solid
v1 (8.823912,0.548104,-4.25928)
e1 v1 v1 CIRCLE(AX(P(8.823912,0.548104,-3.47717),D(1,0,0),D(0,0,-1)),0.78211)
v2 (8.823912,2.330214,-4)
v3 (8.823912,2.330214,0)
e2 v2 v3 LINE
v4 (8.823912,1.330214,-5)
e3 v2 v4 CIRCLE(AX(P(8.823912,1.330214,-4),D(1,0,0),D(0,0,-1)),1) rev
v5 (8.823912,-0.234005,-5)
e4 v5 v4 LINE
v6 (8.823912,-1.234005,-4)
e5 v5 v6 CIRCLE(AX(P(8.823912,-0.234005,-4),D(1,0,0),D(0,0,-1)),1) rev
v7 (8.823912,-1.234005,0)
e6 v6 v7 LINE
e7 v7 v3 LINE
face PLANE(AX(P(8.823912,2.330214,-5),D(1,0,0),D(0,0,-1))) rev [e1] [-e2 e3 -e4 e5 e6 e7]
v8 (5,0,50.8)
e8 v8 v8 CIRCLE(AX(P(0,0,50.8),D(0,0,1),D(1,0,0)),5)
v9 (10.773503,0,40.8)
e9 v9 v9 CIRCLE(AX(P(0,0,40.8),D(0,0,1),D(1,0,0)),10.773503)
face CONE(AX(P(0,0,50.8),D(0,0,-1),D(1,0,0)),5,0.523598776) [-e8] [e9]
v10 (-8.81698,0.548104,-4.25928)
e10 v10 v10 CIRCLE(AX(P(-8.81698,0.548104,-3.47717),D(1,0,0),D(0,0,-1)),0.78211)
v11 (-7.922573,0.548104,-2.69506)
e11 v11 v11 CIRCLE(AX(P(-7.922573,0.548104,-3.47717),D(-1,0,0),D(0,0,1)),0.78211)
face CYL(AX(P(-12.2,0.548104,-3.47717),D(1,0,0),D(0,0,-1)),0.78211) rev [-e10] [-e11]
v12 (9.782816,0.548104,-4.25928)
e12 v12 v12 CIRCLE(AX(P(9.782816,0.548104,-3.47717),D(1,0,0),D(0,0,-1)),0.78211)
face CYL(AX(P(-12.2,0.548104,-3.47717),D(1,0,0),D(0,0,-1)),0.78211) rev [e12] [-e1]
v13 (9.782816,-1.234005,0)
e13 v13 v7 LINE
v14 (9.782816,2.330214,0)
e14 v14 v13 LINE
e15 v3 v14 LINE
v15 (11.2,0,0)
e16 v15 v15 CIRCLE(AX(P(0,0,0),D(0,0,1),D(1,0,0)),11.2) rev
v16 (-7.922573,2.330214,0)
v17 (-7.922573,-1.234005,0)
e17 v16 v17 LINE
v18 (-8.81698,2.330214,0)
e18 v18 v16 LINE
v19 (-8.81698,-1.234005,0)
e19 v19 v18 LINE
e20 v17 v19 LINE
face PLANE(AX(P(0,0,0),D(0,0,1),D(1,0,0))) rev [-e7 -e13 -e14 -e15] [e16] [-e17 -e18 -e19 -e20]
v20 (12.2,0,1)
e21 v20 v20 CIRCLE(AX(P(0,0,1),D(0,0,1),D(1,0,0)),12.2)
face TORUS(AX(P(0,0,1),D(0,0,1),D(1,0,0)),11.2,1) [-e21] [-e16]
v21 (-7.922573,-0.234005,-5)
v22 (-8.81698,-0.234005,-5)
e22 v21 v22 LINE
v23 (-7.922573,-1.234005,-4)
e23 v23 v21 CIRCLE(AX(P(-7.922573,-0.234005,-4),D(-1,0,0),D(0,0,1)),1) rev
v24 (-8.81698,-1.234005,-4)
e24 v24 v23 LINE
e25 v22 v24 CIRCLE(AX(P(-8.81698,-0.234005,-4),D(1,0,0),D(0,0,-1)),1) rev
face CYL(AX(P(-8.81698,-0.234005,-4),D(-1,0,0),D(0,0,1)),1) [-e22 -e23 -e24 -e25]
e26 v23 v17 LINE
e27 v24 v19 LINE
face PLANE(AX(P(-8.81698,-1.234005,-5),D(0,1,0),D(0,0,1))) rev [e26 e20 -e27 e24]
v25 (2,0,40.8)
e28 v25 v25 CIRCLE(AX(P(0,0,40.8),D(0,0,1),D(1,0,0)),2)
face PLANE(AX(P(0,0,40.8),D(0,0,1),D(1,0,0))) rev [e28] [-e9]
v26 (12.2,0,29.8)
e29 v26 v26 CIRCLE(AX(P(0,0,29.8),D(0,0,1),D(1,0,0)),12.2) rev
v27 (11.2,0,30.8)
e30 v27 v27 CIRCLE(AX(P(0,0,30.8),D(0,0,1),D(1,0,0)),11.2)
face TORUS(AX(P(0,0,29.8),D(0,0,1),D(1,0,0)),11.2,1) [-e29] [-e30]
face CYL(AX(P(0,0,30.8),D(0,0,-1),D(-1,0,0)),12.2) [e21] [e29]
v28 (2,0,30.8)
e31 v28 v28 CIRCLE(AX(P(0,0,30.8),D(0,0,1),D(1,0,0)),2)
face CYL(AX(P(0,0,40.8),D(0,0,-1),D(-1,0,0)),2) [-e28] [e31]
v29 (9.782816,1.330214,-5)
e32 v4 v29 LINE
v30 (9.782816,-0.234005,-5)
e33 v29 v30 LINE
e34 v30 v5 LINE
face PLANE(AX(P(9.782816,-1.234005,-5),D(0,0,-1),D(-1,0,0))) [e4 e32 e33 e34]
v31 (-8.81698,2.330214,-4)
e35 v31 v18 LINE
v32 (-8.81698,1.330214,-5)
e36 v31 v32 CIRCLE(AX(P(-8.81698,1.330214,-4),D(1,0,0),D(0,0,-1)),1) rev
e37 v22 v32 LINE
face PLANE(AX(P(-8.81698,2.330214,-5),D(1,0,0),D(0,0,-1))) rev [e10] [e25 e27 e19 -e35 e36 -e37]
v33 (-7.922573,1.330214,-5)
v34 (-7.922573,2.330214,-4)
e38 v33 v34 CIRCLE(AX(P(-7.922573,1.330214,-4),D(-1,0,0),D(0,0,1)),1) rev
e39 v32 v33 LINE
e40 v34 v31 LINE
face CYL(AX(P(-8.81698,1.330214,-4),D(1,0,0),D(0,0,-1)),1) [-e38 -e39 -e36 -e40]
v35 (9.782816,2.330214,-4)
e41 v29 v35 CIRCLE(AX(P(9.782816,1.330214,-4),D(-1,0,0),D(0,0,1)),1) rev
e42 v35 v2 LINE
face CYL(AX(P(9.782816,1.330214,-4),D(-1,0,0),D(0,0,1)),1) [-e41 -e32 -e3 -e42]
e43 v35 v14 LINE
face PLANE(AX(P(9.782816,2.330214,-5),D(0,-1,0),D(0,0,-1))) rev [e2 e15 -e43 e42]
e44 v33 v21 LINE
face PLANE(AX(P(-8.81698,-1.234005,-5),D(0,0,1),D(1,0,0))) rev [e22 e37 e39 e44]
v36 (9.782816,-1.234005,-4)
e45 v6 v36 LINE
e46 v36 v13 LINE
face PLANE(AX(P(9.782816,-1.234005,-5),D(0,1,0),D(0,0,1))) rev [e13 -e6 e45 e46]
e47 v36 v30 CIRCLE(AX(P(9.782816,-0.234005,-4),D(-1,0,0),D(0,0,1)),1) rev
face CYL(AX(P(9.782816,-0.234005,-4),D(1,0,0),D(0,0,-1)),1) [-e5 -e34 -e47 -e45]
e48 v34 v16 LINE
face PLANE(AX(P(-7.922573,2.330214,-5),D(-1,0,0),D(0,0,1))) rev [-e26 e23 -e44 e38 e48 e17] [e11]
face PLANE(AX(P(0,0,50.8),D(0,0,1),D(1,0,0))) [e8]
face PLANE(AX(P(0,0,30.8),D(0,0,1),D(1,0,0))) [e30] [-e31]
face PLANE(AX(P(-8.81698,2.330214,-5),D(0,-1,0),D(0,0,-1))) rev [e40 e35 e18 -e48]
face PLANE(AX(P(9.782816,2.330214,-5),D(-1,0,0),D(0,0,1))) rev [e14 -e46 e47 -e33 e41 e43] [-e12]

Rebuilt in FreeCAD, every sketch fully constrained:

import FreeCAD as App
import Part
import Sketcher

V = App.Vector


def edges_at(feature, points):
    """Names of the edges that pass closest to the given points."""
    edges = feature.Shape.Edges
    near = lambda p: min(range(len(edges)), key=lambda i: edges[i].distToShape(Part.Vertex(*p))[0])
    return sorted({f"Edge{near(p) + 1}" for p in points})


def faces_at(feature, points):
    """Names of the faces that lie closest to the given points."""
    faces = feature.Shape.Faces
    near = lambda p: min(range(len(faces)), key=lambda i: faces[i].distToShape(Part.Vertex(*p))[0])
    return sorted({f"Face{near(p) + 1}" for p in points})


def add_polygon(sketch, points):
    """Adds a closed chain of lines whose ends are joined by coincident constraints."""
    first, n = sketch.GeometryCount, len(points)
    for a, b in zip(points, points[1:] + points[:1]):
        sketch.addGeometry(Part.LineSegment(App.Vector(*a, 0), App.Vector(*b, 0)), False)
    for i in range(n):
        sketch.addConstraint(Sketcher.Constraint("Coincident", first + i, 2, first + (i + 1) % n, 1))

doc = App.newDocument("Part")
body = doc.addObject("PartDesign::Body", "Body")

sketch1 = body.newObject("Sketcher::SketchObject", "Sketch")
sketch1.AttachmentSupport = (doc.getObject("XY_Plane"), [""])
sketch1.MapMode = "FlatFace"
sketch1.addGeometry(Part.Circle(V(0, 0, 0), V(0, 0, 1), 12), False)
sketch1.addConstraint([
    Sketcher.Constraint("Coincident", 0, 3, -1, 1),
    Sketcher.Constraint("Diameter", 0, 24.4),
])
pad1 = body.newObject("PartDesign::Pad", "Pad")
pad1.Profile = sketch1
pad1.Length = 30.8
doc.recompute()

fillet = body.newObject("PartDesign::Fillet", "Fillet")
fillet.Base = (pad1, edges_at(pad1, [(-12.2, 0, 0), (-12.2, 0, 30.8)]))
fillet.Radius = 1

sketch2 = body.newObject("Sketcher::SketchObject", "Sketch001")
sketch2.AttachmentSupport = (doc.getObject("XY_Plane"), [""])
sketch2.MapMode = "FlatFace"
sketch2.AttachmentOffset = App.Placement(V(0, 0, 30.8), App.Rotation())
sketch2.addGeometry(Part.Circle(V(0, 0, 0), V(0, 0, 1), 2), False)
sketch2.addConstraint([
    Sketcher.Constraint("Coincident", 0, 3, -1, 1),
    Sketcher.Constraint("Diameter", 0, 4.0),
])
pad2 = body.newObject("PartDesign::Pad", "Pad001")
pad2.Profile = sketch2
pad2.Length = 10

sketch3 = body.newObject("Sketcher::SketchObject", "Sketch002")
sketch3.AttachmentSupport = (doc.getObject("XY_Plane"), [""])
sketch3.MapMode = "FlatFace"
add_polygon(sketch3, [(9.8, 2.3), (9.8, -1.2), (8.8, -1.2), (8.8, 2.3)])
add_polygon(sketch3, [(-7.9, 2.3), (-7.9, -1.2), (-8.8, -1.2), (-8.8, 2.3)])
sketch3.addConstraint([
    Sketcher.Constraint("Vertical", 0),
    Sketcher.Constraint("Horizontal", 1),
    Sketcher.Constraint("Vertical", 2),
    Sketcher.Constraint("Horizontal", 3),
    Sketcher.Constraint("Vertical", 4),
    Sketcher.Constraint("Horizontal", 5),
    Sketcher.Constraint("Vertical", 6),
    Sketcher.Constraint("Horizontal", 7),
    Sketcher.Constraint("Horizontal", 1, 2, 4, 2),
    Sketcher.Constraint("Horizontal", 3, 2, 6, 2),
    Sketcher.Constraint("DistanceY", 0, 2, 0, 1, 3.564219),
    Sketcher.Constraint("DistanceX", 1, 2, 1, 1, 0.958904),
    Sketcher.Constraint("DistanceX", 5, 2, 5, 1, 0.894407),
    Sketcher.Constraint("DistanceX", 5, 2, -1, 1, 8.81698),
    Sketcher.Constraint("DistanceX", 4, 2, 0, 2, 17.705389),
    Sketcher.Constraint("DistanceY", 0, 2, -1, 1, 1.234005),
])
pad3 = body.newObject("PartDesign::Pad", "Pad002")
pad3.Profile = sketch3
pad3.Length = 5
pad3.Reversed = True
doc.recompute()

fillet2 = body.newObject("PartDesign::Fillet", "Fillet001")
fillet2.Base = (pad3, edges_at(pad3, [
    (9.303, -1.234, -5),
    (9.303, 2.33, -5),
    (-8.37, 2.33, -5),
    (-8.37, -1.234, -5),
]))
fillet2.Radius = 1

sketch4 = body.newObject("Sketcher::SketchObject", "Sketch003")
sketch4.AttachmentSupport = (doc.getObject("YZ_Plane"), [""])
sketch4.MapMode = "FlatFace"
sketch4.AttachmentOffset = App.Placement(V(0, 0, 9.782816), App.Rotation())
sketch4.addGeometry(Part.Circle(V(0.5, -3.5, 0), V(0, 0, 1), 0.8), False)
sketch4.addConstraint([
    Sketcher.Constraint("Diameter", 0, 1.564219),
    Sketcher.Constraint("DistanceY", 0, 3, -1, 1, 3.47717),
    Sketcher.Constraint("DistanceX", -1, 1, 0, 3, 0.548104),
])
pocket1 = body.newObject("PartDesign::Pocket", "Pocket")
pocket1.Profile = sketch4
pocket1.Type = "ThroughAll"

sketch5 = body.newObject("Sketcher::SketchObject", "Sketch004")
sketch5.AttachmentSupport = (doc.getObject("XY_Plane"), [""])
sketch5.MapMode = "FlatFace"
sketch5.AttachmentOffset = App.Placement(V(0, 0, 40.8), App.Rotation())
sketch5.addGeometry(Part.Circle(V(0, 0, 0), V(0, 0, 1), 5), False)
sketch5.addConstraint([
    Sketcher.Constraint("Coincident", 0, 3, -1, 1),
    Sketcher.Constraint("Diameter", 0, 10.0),
])
pad4 = body.newObject("PartDesign::Pad", "Pad003")
pad4.Profile = sketch5
pad4.Length = 10
doc.recompute()

datumplane = body.newObject("PartDesign::Plane", "DatumPlane")
datumplane.AttachmentSupport = (doc.getObject("XY_Plane"), [""])
datumplane.MapMode = "FlatFace"
datumplane.AttachmentOffset = App.Placement(V(0, 0, 50.8), App.Rotation())
draft = body.newObject("PartDesign::Draft", "Draft")
draft.Base = (pad4, faces_at(pad4, [(-5, 0, 45.8)]))
draft.NeutralPlane = (datumplane, [""])
draft.Angle = 30
draft.Reversed = False

doc.recompute()
